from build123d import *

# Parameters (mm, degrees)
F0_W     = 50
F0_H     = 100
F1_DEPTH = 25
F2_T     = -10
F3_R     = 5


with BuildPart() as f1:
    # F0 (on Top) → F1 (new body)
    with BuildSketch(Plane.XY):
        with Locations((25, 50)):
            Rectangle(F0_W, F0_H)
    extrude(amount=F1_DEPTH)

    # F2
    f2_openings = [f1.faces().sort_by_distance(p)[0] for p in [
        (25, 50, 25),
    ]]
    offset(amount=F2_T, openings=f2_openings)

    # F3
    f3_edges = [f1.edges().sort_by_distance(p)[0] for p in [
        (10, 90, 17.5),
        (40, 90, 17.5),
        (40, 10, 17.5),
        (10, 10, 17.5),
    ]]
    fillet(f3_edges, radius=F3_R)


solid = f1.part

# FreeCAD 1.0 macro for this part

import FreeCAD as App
import Part
import Sketcher


def edges_at(feature, points):
    """Names of the edges that pass closest to the given points."""
    edges = feature.Shape.Edges
    near = lambda p: min(range(len(edges)), key=lambda i: edges[i].distToShape(Part.Vertex(*p))[0])
    return sorted({f"Edge{near(p) + 1}" for p in points})


def faces_at(feature, points):
    """Names of the faces that lie closest to the given points."""
    faces = feature.Shape.Faces
    near = lambda p: min(range(len(faces)), key=lambda i: faces[i].distToShape(Part.Vertex(*p))[0])
    return sorted({f"Face{near(p) + 1}" for p in points})


def add_polygon(sketch, points):
    """Adds a closed chain of lines whose ends are joined by coincident constraints."""
    first, n = sketch.GeometryCount, len(points)
    for a, b in zip(points, points[1:] + points[:1]):
        sketch.addGeometry(Part.LineSegment(App.Vector(*a, 0), App.Vector(*b, 0)), False)
    for i in range(n):
        sketch.addConstraint(Sketcher.Constraint("Coincident", first + i, 2, first + (i + 1) % n, 1))

doc = App.newDocument("Part")
params = doc.addObject("Spreadsheet::Sheet", "Params")
for row, (alias, value) in enumerate([
    ("sketch1_width", "50 mm"),
    ("sketch1_height", "100 mm"),
    ("pad1_length", "25 mm"),
    ("thickness_wall", "10 mm"),
    ("fillet_radius", "5 mm"),
], start=1):
    params.set(f"A{row}", alias)
    params.set(f"B{row}", "=" + value)
    params.setAlias(f"B{row}", alias)

body = doc.addObject("PartDesign::Body", "Body")

# Sketch on XY plane
sketch1 = doc.addObject("Sketcher::SketchObject", "Sketch")
body.addObject(sketch1)
sketch1.AttachmentSupport = (doc.XY_Plane, [""])
sketch1.MapMode = "FlatFace"
add_polygon(sketch1, [(0, 100), (0, 0), (50, 0), (50, 100)])  # lines 0-3
sketch1.addConstraint([
    Sketcher.Constraint("Vertical", 0),
    Sketcher.Constraint("Horizontal", 1),
    Sketcher.Constraint("Vertical", 2),
    Sketcher.Constraint("Horizontal", 3),
    Sketcher.Constraint("Coincident", 0, 2, -1, 1),
    Sketcher.Constraint("DistanceX", 1, 1, 1, 2, 50.0),
    Sketcher.Constraint("DistanceY", 0, 2, 0, 1, 100.0),
])
sketch1.setExpression("Constraints[9]", "Params.sketch1_width")
sketch1.setExpression("Constraints[10]", "Params.sketch1_height")
pad1 = doc.addObject("PartDesign::Pad", "Pad")
body.addObject(pad1)
pad1.Profile = sketch1
pad1.setExpression("Length", "Params.pad1_length")
doc.recompute()

thickness = doc.addObject("PartDesign::Thickness", "Thickness")
body.addObject(thickness)
thickness.Base = (pad1, faces_at(pad1, [(25, 50, 25)]))
thickness.setExpression("Value", "Params.thickness_wall")
thickness.Reversed = True
thickness.Join = "Arc"
doc.recompute()

fillet = doc.addObject("PartDesign::Fillet", "Fillet")
body.addObject(fillet)
fillet.Base = (thickness, edges_at(thickness, [
    (10, 90, 17.5),
    (40, 90, 17.5),
    (40, 10, 17.5),
    (10, 10, 17.5),
]))
fillet.setExpression("Radius", "Params.fillet_radius")

doc.recompute()
